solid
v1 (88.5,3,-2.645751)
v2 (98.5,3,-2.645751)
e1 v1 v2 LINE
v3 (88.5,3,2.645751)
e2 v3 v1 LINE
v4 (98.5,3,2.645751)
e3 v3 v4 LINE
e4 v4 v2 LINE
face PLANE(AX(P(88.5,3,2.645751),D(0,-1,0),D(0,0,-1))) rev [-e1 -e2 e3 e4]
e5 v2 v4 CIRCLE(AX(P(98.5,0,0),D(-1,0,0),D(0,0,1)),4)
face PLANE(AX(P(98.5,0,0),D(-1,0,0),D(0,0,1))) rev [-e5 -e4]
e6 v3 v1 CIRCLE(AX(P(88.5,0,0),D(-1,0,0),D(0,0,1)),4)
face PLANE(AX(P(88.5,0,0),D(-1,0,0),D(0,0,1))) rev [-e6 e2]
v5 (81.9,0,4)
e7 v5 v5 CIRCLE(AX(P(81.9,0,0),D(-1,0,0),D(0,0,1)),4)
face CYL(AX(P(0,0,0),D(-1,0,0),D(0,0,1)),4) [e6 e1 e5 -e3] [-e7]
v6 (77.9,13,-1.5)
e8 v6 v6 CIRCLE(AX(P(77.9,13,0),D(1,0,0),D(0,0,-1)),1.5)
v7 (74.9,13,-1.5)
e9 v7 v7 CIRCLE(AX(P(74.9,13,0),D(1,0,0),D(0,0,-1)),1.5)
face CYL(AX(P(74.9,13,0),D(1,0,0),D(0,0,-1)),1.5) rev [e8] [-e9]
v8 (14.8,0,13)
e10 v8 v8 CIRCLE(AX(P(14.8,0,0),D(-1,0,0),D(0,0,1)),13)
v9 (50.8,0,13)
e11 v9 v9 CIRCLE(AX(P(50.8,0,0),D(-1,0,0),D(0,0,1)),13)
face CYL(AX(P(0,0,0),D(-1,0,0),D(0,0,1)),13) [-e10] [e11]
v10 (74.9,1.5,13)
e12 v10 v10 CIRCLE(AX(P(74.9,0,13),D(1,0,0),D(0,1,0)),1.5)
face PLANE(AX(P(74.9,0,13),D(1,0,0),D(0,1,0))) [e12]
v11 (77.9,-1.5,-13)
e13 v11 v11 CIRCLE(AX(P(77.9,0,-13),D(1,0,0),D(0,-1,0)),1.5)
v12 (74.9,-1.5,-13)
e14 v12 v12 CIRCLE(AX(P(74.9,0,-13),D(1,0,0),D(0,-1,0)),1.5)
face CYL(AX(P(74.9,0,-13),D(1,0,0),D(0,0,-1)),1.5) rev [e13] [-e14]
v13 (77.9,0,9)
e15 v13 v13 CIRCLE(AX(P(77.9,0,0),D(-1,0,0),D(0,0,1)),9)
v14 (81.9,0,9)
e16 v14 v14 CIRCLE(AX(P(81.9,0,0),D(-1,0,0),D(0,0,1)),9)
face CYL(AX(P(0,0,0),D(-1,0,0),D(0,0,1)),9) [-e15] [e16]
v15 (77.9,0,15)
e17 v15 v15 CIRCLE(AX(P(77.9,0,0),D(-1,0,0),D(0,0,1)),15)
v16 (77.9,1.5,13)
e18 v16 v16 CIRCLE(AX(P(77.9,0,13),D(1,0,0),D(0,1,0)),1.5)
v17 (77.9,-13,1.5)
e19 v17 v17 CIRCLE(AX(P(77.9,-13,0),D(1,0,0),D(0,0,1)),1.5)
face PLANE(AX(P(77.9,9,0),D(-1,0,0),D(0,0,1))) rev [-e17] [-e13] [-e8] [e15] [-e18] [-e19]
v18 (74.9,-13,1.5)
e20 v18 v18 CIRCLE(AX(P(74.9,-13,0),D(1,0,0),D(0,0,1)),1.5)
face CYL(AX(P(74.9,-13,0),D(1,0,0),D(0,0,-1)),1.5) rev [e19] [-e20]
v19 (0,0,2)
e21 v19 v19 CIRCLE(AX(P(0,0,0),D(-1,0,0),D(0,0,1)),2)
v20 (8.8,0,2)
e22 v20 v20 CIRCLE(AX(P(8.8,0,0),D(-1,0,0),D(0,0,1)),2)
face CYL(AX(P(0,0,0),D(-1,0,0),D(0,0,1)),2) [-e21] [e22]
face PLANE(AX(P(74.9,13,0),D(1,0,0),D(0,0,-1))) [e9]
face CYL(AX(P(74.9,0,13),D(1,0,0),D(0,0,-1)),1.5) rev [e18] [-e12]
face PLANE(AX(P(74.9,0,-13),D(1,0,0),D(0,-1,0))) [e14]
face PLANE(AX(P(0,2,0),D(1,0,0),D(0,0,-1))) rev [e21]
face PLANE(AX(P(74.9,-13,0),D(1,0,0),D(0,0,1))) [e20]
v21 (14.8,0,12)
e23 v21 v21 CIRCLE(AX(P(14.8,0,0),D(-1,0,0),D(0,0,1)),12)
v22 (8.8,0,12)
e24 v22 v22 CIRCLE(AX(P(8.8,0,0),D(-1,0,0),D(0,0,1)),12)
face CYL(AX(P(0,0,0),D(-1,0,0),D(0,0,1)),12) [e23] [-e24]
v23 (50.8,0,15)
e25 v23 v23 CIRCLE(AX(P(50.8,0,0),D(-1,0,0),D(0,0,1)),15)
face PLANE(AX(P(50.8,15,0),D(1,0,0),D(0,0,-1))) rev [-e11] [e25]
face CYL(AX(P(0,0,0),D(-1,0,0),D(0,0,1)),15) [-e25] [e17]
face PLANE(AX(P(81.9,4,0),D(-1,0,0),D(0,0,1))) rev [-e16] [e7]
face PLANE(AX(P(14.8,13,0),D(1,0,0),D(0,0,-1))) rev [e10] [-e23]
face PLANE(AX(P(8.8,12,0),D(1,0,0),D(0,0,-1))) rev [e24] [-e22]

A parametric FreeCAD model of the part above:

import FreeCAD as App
import Part
import Sketcher
from FreeCAD import Vector
Q = App.Units.Quantity


def add_polygon(sketch, points):
    """Adds a closed chain of lines whose ends are joined by coincident constraints."""
    first, n = sketch.GeometryCount, len(points)
    for a, b in zip(points, points[1:] + points[:1]):
        sketch.addGeometry(Part.LineSegment(App.Vector(*a, 0), App.Vector(*b, 0)), False)
    for i in range(n):
        sketch.addConstraint(Sketcher.Constraint("Coincident", first + i, 2, first + (i + 1) % n, 1))

doc = App.newDocument("Part")
body = doc.addObject("PartDesign::Body", "Body")

# Sketch on XY plane
sketch1 = body.newObject("Sketcher::SketchObject", "Sketch")
sketch1.AttachmentSupport = (doc.getObject("XY_Plane"), [""])
sketch1.MapMode = "FlatFace"
add_polygon(sketch1, [(0, 0), (98.5, 0), (98.5, 4), (81.9, 4), (81.9, 9), (77.9, 9), (77.9, 15), (50.8, 15), (50.8, 13), (14.8, 13), (14.8, 12), (8.8, 12), (8.8, 2), (0, 2)])  # lines 0-13
sketch1.addConstraint([
    Sketcher.Constraint("Horizontal", 0),
    Sketcher.Constraint("Vertical", 1),
    Sketcher.Constraint("Horizontal", 2),
    Sketcher.Constraint("Vertical", 3),
    Sketcher.Constraint("Horizontal", 4),
    Sketcher.Constraint("Vertical", 5),
    Sketcher.Constraint("Horizontal", 6),
    Sketcher.Constraint("Vertical", 7),
    Sketcher.Constraint("Horizontal", 8),
    Sketcher.Constraint("Vertical", 9),
    Sketcher.Constraint("Horizontal", 10),
    Sketcher.Constraint("Vertical", 11),
    Sketcher.Constraint("Horizontal", 12),
    Sketcher.Constraint("Vertical", 13),
    Sketcher.Constraint("Coincident", 13, 2, -1, 1),
    Sketcher.Constraint("Equal", 4, 1),
    Sketcher.Constraint("Equal", 10, 5),
    Sketcher.Constraint("Equal", 7, 13),
    Sketcher.Constraint("DistanceX", 4, 2, 4, 1, Q("4 mm")),
    Sketcher.Constraint("DistanceX", 8, 2, 8, 1, Q("36 mm")),
    Sketcher.Constraint("DistanceX", 10, 2, 10, 1, Q("6 mm")),
    Sketcher.Constraint("DistanceY", 3, 1, 3, 2, Q("5 mm")),
    Sketcher.Constraint("DistanceY", 7, 2, 7, 1, Q("2 mm")),
    Sketcher.Constraint("DistanceY", 9, 2, 9, 1, Q("1 mm")),
    Sketcher.Constraint("DistanceX", 0, 1, 0, 2, Q("98.5 mm")),
    Sketcher.Constraint("DistanceX", 2, 2, 2, 1, Q("16.6 mm")),
    Sketcher.Constraint("DistanceX", 6, 2, 6, 1, Q("27.1 mm")),
])
revolution = body.newObject("PartDesign::Revolution", "Revolution")
revolution.Profile = sketch1
revolution.ReferenceAxis = (sketch1, ["H_Axis"])
revolution.Angle = 360

# Sketch on YZ plane
sketch2 = body.newObject("Sketcher::SketchObject", "Sketch001")
sketch2.AttachmentSupport = (doc.getObject("YZ_Plane"), [""])
sketch2.MapMode = "FlatFace"
sketch2.AttachmentOffset = App.Placement(Vector(0, 0, 98.5), App.Rotation())
add_polygon(sketch2, [(4, 2.6), (3, 2.6), (3, -2.6), (4, -2.6)])  # lines 0-3
sketch2.addConstraint([
    Sketcher.Constraint("Horizontal", 0),
    Sketcher.Constraint("Vertical", 1),
    Sketcher.Constraint("Horizontal", 2),
    Sketcher.Constraint("Vertical", 3),
    Sketcher.Constraint("DistanceX", 0, 2, 0, 1, Q("1 mm")),
    Sketcher.Constraint("DistanceX", -1, 1, 0, 2, Q("3 mm")),
    Sketcher.Constraint("DistanceY", 1, 2, 1, 1, Q("5.291503 mm")),
    Sketcher.Constraint("DistanceY", -1, 1, 0, 2, Q("2.645751 mm")),
])
pocket1 = body.newObject("PartDesign::Pocket", "Pocket")
pocket1.Profile = sketch2
pocket1.Length = 10

# Sketch on YZ plane
sketch3 = body.newObject("Sketcher::SketchObject", "Sketch002")
sketch3.AttachmentSupport = (doc.getObject("YZ_Plane"), [""])
sketch3.MapMode = "FlatFace"
sketch3.AttachmentOffset = App.Placement(Vector(0, 0, 77.9), App.Rotation())
sketch3.addGeometry(Part.Circle(Vector(13, 0, 0), Vector(0, 0, 1), 1.5), False)
sketch3.addConstraint([
    Sketcher.Constraint("PointOnObject", 0, 3, -1),
    Sketcher.Constraint("Diameter", 0, Q("3 mm")),
    Sketcher.Constraint("DistanceX", -1, 1, 0, 3, Q("13 mm")),
])
pocket2 = body.newObject("PartDesign::Pocket", "Pocket001")
pocket2.Profile = sketch3
pocket2.Length = 3
doc.recompute()

polarpattern = body.newObject("PartDesign::PolarPattern", "PolarPattern")
polarpattern.Originals = [pocket2]
polarpattern.Axis = (doc.getObject("X_Axis"), [""])
polarpattern.Angle = 360
polarpattern.Occurrences = 4
body.Tip = polarpattern

doc.recompute()
